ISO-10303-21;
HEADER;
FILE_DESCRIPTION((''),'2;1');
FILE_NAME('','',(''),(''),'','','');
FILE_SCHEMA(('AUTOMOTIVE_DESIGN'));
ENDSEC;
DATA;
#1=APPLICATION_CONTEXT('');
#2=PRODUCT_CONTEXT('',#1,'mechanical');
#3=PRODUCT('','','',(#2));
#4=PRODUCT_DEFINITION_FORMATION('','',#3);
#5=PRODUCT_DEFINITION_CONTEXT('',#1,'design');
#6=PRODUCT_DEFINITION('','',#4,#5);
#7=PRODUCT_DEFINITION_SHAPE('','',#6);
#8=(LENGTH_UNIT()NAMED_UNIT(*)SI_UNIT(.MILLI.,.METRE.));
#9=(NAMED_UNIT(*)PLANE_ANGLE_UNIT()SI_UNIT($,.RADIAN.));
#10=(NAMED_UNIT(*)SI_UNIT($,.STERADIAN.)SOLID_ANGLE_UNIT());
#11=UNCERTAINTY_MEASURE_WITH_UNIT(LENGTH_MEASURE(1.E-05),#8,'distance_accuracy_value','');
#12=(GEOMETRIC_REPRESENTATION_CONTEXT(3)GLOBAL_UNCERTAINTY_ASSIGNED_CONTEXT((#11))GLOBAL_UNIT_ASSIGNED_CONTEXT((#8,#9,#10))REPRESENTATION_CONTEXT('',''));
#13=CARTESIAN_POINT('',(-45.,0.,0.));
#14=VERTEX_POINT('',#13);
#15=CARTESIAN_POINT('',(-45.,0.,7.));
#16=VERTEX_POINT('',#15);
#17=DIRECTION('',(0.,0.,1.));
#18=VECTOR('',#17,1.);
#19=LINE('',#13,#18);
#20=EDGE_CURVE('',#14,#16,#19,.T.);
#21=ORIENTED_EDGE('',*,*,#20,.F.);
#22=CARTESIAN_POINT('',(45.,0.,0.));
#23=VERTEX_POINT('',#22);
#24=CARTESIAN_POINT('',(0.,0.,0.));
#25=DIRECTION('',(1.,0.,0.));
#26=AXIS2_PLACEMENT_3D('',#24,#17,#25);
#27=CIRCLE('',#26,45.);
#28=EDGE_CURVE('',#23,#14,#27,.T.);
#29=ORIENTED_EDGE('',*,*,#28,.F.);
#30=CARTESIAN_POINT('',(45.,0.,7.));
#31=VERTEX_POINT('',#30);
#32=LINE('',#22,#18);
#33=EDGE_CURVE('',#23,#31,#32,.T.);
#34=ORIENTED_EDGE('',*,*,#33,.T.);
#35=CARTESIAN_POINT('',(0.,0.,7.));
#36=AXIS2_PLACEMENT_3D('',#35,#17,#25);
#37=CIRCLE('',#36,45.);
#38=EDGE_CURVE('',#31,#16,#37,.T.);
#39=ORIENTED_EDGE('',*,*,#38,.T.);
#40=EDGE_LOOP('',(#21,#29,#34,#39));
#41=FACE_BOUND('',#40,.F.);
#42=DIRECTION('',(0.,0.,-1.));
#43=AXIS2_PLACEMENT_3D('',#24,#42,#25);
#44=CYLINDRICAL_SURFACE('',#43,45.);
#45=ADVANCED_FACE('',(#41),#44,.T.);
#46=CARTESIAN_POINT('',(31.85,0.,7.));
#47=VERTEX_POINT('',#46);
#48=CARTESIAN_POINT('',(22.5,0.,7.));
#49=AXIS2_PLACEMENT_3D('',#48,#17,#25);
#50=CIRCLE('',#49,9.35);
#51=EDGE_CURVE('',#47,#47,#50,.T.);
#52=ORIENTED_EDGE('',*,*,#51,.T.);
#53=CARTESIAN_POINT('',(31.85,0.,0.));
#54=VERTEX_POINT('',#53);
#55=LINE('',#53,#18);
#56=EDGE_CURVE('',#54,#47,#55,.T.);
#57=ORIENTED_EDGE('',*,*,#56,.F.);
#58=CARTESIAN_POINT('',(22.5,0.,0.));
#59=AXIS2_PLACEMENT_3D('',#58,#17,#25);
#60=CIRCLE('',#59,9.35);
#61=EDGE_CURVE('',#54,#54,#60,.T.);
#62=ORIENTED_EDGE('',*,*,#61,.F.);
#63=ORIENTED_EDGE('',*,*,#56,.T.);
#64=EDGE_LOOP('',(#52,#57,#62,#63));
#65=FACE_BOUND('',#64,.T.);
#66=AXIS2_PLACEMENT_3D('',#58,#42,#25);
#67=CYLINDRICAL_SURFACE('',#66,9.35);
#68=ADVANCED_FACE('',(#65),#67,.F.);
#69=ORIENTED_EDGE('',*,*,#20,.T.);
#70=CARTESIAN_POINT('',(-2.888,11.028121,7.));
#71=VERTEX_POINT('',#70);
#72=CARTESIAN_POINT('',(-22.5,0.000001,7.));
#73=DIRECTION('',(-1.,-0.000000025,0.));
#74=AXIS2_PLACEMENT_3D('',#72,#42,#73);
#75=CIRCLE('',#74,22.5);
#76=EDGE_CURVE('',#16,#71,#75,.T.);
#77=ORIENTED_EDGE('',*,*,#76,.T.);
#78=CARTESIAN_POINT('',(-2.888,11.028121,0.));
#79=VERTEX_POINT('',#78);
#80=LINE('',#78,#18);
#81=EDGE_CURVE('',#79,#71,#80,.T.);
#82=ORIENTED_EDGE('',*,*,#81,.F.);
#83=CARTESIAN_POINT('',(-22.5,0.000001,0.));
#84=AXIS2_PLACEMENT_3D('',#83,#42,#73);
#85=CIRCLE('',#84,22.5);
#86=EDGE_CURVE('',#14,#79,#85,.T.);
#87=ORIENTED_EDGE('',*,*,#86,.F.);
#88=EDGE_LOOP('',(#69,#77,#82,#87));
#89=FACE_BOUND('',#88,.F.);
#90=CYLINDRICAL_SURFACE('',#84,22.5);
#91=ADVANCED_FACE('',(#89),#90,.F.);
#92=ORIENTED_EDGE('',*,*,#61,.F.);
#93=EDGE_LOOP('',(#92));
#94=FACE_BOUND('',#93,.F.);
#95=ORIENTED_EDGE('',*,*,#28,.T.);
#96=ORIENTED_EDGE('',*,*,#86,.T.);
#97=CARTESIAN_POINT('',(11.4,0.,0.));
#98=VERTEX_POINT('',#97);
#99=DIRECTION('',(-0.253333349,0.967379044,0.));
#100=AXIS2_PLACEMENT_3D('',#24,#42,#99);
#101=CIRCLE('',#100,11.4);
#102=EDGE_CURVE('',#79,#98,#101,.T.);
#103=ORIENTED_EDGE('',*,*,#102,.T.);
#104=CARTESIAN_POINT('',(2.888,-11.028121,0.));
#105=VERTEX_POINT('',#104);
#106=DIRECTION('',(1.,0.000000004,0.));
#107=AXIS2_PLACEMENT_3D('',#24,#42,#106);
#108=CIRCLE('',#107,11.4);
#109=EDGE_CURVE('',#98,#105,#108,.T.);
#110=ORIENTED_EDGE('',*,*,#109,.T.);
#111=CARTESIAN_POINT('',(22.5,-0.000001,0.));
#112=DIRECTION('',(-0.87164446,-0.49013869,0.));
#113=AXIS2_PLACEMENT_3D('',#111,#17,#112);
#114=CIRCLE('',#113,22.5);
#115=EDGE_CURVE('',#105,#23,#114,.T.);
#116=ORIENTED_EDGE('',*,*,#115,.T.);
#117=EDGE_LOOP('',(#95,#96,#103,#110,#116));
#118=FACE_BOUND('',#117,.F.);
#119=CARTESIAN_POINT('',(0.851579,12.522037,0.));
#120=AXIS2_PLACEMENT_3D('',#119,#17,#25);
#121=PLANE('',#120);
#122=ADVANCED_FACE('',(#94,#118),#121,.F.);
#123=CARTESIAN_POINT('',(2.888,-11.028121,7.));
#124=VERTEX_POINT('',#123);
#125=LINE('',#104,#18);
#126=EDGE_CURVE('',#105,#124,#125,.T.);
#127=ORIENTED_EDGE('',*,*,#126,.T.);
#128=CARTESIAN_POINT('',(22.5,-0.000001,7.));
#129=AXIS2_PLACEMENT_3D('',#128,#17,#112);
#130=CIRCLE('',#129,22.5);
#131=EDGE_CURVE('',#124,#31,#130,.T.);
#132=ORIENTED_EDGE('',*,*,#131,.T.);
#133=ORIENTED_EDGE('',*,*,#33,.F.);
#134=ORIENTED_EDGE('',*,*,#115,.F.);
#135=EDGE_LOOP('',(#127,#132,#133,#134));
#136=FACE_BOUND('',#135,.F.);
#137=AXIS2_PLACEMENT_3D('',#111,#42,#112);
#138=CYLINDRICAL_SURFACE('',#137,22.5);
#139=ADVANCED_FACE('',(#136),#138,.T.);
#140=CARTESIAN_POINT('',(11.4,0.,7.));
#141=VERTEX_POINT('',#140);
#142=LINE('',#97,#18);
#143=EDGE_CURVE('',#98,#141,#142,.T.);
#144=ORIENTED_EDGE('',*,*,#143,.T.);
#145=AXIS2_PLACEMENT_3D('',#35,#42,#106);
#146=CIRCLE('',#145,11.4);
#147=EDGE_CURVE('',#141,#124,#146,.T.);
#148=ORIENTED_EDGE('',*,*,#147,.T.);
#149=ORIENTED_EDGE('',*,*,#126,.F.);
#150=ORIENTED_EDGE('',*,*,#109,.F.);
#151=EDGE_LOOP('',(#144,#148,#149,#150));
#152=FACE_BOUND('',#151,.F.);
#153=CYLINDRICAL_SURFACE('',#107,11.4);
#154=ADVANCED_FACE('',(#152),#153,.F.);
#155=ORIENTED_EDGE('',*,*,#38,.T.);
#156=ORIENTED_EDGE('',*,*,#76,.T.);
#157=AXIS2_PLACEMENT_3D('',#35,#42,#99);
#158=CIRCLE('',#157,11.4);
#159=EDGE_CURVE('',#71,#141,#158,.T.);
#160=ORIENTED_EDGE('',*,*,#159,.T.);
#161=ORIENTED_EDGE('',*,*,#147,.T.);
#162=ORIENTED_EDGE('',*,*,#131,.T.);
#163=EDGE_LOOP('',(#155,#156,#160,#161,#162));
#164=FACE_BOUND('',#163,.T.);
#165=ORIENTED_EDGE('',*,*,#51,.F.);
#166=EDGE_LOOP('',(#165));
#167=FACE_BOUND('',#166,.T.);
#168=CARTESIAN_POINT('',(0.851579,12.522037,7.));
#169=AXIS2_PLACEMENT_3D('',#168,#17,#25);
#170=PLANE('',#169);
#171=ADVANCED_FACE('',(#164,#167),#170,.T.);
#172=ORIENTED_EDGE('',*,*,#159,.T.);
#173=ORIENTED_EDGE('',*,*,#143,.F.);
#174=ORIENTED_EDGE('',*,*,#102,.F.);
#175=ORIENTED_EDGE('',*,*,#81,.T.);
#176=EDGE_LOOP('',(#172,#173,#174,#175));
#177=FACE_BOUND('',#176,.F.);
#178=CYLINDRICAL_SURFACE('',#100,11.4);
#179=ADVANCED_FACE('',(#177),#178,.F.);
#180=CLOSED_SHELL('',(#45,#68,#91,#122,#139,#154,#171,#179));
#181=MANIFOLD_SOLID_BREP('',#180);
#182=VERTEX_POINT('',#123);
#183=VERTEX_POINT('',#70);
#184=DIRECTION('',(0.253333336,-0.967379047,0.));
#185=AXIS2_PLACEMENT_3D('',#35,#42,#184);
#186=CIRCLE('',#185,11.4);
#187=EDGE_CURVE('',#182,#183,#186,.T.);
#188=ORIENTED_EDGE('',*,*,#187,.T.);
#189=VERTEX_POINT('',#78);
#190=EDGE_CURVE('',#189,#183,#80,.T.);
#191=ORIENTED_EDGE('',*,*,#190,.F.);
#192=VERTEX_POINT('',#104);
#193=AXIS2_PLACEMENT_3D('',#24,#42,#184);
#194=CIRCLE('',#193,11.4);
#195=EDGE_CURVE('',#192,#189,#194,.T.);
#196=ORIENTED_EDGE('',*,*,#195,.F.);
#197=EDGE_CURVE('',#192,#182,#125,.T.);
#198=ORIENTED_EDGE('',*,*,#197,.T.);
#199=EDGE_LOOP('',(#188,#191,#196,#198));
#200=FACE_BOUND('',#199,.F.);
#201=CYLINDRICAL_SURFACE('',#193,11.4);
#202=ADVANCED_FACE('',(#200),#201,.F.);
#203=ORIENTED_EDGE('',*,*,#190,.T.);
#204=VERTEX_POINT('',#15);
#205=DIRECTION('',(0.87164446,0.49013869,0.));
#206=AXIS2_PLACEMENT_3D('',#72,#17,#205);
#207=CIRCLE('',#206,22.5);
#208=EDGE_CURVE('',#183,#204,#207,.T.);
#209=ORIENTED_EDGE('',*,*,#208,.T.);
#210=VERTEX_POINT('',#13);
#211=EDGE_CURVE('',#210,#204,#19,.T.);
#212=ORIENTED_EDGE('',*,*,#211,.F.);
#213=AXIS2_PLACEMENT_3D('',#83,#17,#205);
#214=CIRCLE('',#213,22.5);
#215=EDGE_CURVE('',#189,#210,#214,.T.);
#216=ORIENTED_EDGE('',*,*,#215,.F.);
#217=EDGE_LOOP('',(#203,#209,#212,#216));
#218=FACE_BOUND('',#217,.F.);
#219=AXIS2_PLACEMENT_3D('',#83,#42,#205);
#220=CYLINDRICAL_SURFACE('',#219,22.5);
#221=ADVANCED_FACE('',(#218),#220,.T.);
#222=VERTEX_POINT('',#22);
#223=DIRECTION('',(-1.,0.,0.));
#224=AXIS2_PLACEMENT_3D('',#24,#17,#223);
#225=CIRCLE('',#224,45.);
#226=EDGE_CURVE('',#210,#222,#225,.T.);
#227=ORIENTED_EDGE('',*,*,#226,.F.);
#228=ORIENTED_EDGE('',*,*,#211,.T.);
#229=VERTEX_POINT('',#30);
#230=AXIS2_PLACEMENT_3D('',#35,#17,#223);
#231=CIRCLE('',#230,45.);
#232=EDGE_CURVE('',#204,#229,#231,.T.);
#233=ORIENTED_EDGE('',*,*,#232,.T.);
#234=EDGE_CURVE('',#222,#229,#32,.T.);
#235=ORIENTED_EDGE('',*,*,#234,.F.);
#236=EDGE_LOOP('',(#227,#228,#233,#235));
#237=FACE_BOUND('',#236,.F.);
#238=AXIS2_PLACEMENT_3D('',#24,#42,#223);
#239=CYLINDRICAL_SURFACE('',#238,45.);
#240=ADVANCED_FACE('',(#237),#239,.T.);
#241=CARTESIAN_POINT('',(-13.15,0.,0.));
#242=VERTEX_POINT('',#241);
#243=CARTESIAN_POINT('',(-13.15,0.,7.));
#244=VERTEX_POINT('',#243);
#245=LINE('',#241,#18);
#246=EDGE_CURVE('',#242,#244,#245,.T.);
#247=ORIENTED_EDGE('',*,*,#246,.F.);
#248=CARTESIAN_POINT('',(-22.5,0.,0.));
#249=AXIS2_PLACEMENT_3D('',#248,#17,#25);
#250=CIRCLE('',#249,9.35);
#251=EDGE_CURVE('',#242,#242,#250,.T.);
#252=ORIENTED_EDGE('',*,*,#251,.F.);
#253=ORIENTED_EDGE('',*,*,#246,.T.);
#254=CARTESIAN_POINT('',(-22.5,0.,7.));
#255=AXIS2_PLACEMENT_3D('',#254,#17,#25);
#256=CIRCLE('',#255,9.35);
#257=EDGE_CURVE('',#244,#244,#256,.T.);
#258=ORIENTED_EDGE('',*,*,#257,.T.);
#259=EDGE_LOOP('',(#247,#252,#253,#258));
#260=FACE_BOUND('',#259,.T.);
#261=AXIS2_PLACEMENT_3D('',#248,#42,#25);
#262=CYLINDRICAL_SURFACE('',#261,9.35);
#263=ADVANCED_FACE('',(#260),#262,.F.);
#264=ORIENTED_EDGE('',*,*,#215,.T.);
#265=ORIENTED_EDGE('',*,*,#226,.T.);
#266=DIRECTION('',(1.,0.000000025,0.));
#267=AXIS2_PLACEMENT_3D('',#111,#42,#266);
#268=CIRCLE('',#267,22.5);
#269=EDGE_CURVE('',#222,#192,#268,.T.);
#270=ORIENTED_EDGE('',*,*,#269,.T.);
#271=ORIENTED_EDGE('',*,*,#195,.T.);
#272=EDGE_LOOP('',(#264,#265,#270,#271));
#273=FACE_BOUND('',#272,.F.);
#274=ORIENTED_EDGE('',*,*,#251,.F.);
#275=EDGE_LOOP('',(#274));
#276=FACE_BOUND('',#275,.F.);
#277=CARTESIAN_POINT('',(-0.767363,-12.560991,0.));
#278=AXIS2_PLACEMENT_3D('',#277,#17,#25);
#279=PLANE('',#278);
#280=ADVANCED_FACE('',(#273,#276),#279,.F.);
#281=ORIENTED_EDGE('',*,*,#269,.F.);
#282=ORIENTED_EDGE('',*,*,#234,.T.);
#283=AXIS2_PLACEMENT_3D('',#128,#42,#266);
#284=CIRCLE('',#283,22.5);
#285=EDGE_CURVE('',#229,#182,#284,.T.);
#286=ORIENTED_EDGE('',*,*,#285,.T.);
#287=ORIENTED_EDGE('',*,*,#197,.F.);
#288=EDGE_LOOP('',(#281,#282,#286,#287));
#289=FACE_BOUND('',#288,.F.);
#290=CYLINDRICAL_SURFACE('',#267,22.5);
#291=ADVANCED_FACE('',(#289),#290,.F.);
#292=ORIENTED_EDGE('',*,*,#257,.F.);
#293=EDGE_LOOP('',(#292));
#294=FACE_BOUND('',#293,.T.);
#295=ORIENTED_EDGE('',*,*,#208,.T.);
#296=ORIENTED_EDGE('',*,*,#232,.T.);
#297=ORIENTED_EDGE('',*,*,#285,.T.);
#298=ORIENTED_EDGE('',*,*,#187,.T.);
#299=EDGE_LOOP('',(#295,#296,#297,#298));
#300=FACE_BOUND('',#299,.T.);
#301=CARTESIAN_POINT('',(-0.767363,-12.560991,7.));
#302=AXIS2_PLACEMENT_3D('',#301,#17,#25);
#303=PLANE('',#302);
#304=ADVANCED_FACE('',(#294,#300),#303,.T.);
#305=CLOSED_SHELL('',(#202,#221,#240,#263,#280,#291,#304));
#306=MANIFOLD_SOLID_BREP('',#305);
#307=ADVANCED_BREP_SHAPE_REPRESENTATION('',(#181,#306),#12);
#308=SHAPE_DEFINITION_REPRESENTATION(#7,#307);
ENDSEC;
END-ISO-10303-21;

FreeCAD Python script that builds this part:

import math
import FreeCAD as App
import Part
import Sketcher

V = App.Vector

doc = App.newDocument("Part")
params = doc.addObject("Spreadsheet::Sheet", "Params")
for row, (alias, value) in enumerate([
    ("sketch1_radius", "45 mm"),
    ("sketch1_diameter", "18.7 mm"),
    ("sketch1_radius2", "22.5 mm"),
    ("sketch1_radius3", "11.4 mm"),
    ("pad1_length", "7 mm"),
    ("sketch2_radius", "45 mm"),
    ("sketch2_diameter", "18.7 mm"),
    ("sketch2_radius2", "22.5 mm"),
    ("sketch2_radius3", "11.4 mm"),
    ("pad2_length", "7 mm"),
], start=1):
    params.set(f"A{row}", alias)
    params.set(f"B{row}", "=" + value)
    params.setAlias(f"B{row}", alias)

body = doc.addObject("PartDesign::Body", "Body")

# Sketch on XY plane
sketch1 = doc.addObject("Sketcher::SketchObject", "Sketch")
body.addObject(sketch1)
sketch1.AttachmentSupport = (doc.XY_Plane, [""])
sketch1.MapMode = "FlatFace"
sketch1.addGeometry(Part.ArcOfCircle(Part.Circle(V(0, 0, 0), V(0, 0, 1), 45), math.radians(180), math.radians(360)), False)
sketch1.addGeometry(Part.ArcOfCircle(Part.Circle(V(22.5, -0.000001, 0), V(0, 0, 1), 22.5), math.radians(-150.650302), math.radians(0.000001)), False)
sketch1.addGeometry(Part.ArcOfCircle(Part.Circle(V(0, 0, 0), V(0, 0, 1), 11.4), math.radians(104.67485), math.radians(284.67485)), False)
sketch1.addGeometry(Part.ArcOfCircle(Part.Circle(V(-22.5, 0.000001, 0), V(0, 0, 1), 22.5), math.radians(29.349698), math.radians(180.000001)), False)
sketch1.addGeometry(Part.Circle(V(-22.5, 0, 0), V(0, 0, 1), 9.35), False)
sketch1.addConstraint(Sketcher.Constraint("Tangent", 0, 2, 1, 2))
sketch1.addConstraint(Sketcher.Constraint("Coincident", 1, 1, 2, 2))
sketch1.addConstraint(Sketcher.Constraint("Coincident", 2, 1, 3, 1))
sketch1.addConstraint(Sketcher.Constraint("Tangent", 3, 2, 0, 1))
sketch1.addConstraint(Sketcher.Constraint("Coincident", 0, 3, -1, 1))
sketch1.addConstraint(Sketcher.Constraint("Coincident", 2, 3, -1, 1))
sketch1.addConstraint(Sketcher.Constraint("Coincident", 4, 3, 3, 3))
sketch1.addConstraint(Sketcher.Constraint("Equal", 1, 3))
sketch1.addConstraint(Sketcher.Constraint("PointOnObject", 1, 3, -1))
sketch1.addConstraint(Sketcher.Constraint("PointOnObject", 3, 3, -1))
sketch1.addConstraint(Sketcher.Constraint("Radius", 0, 45.0))
sketch1.addConstraint(Sketcher.Constraint("Diameter", 4, 18.7))
sketch1.addConstraint(Sketcher.Constraint("Radius", 1, 22.5))
sketch1.addConstraint(Sketcher.Constraint("Radius", 2, 11.4))
sketch1.setExpression("Constraints[10]", "Params.sketch1_radius")
sketch1.setExpression("Constraints[11]", "Params.sketch1_diameter")
sketch1.setExpression("Constraints[12]", "Params.sketch1_radius2")
sketch1.setExpression("Constraints[13]", "Params.sketch1_radius3")
pad1 = doc.addObject("PartDesign::Pad", "Pad")
body.addObject(pad1)
pad1.Profile = sketch1
pad1.setExpression("Length", "Params.pad1_length")
body2 = doc.addObject("PartDesign::Body", "Body001")

# Sketch on XY plane
sketch2 = doc.addObject("Sketcher::SketchObject", "Sketch001")
body2.addObject(sketch2)
sketch2.AttachmentSupport = (doc.getObject("XY_Plane001"), [""])
sketch2.MapMode = "FlatFace"
sketch2.addGeometry(Part.ArcOfCircle(Part.Circle(V(22.5, -0.000001, 0), V(0, 0, 1), 22.5), math.radians(-150.650302), math.radians(0.000001)), False)
sketch2.addGeometry(Part.ArcOfCircle(Part.Circle(V(0, 0, 0), V(0, 0, 1), 45), math.radians(0), math.radians(180)), False)
sketch2.addGeometry(Part.ArcOfCircle(Part.Circle(V(-22.5, 0.000001, 0), V(0, 0, 1), 22.5), math.radians(29.349698), math.radians(180.000001)), False)
sketch2.addGeometry(Part.ArcOfCircle(Part.Circle(V(0, 0, 0), V(0, 0, 1), 11.4), math.radians(0), math.radians(104.674851)), False)
sketch2.addGeometry(Part.ArcOfCircle(Part.Circle(V(0, 0, 0), V(0, 0, 1), 11.4), math.radians(-75.325151), math.radians(0)), False)
sketch2.addGeometry(Part.Circle(V(22.5, 0, 0), V(0, 0, 1), 9.35), False)
sketch2.addConstraint(Sketcher.Constraint("Tangent", 0, 2, 1, 1))
sketch2.addConstraint(Sketcher.Constraint("Tangent", 1, 2, 2, 2))
sketch2.addConstraint(Sketcher.Constraint("Coincident", 2, 1, 3, 2))
sketch2.addConstraint(Sketcher.Constraint("Tangent", 3, 1, 4, 2))
sketch2.addConstraint(Sketcher.Constraint("Coincident", 4, 1, 0, 1))
sketch2.addConstraint(Sketcher.Constraint("Coincident", 1, 3, -1, 1))
sketch2.addConstraint(Sketcher.Constraint("Coincident", 3, 3, -1, 1))
sketch2.addConstraint(Sketcher.Constraint("Coincident", 5, 3, 0, 3))
sketch2.addConstraint(Sketcher.Constraint("Equal", 0, 2))
sketch2.addConstraint(Sketcher.Constraint("Equal", 3, 4))
sketch2.addConstraint(Sketcher.Constraint("PointOnObject", 0, 3, -1))
sketch2.addConstraint(Sketcher.Constraint("PointOnObject", 2, 3, -1))
sketch2.addConstraint(Sketcher.Constraint("PointOnObject", 3, 1, -1))
sketch2.addConstraint(Sketcher.Constraint("Radius", 1, 45.0))
sketch2.addConstraint(Sketcher.Constraint("Diameter", 5, 18.7))
sketch2.addConstraint(Sketcher.Constraint("Radius", 0, 22.5))
sketch2.addConstraint(Sketcher.Constraint("Radius", 3, 11.4))
sketch2.setExpression("Constraints[13]", "Params.sketch2_radius")
sketch2.setExpression("Constraints[14]", "Params.sketch2_diameter")
sketch2.setExpression("Constraints[15]", "Params.sketch2_radius2")
sketch2.setExpression("Constraints[16]", "Params.sketch2_radius3")
pad2 = doc.addObject("PartDesign::Pad", "Pad001")
body2.addObject(pad2)
pad2.Profile = sketch2
pad2.setExpression("Length", "Params.pad2_length")

doc.recompute()
